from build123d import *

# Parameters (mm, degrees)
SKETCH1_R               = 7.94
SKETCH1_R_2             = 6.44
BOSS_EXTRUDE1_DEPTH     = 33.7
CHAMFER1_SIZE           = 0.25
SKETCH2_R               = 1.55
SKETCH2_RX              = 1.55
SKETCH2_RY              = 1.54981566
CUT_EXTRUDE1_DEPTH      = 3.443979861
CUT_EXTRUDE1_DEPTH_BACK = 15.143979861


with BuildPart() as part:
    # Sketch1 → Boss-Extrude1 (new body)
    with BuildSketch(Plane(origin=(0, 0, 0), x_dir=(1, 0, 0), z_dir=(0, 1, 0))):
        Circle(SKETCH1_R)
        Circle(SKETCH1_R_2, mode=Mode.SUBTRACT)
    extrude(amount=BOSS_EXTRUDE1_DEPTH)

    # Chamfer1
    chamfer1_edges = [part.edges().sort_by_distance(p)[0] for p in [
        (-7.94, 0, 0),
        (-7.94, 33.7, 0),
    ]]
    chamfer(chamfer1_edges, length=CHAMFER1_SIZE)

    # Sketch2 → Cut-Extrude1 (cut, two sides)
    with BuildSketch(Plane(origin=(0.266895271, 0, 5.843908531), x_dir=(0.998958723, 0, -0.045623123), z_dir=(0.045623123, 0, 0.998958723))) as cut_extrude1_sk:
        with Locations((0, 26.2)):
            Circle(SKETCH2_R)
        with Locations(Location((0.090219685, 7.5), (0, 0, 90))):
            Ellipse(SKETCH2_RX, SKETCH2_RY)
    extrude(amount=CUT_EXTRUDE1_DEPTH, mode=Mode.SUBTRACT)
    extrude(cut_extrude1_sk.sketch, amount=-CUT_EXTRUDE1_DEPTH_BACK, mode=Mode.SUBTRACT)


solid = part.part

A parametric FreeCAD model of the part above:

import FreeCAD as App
import Part
import Sketcher
from FreeCAD import Vector
Q = App.Units.Quantity


def edges_at(feature, points):
    """Names of the edges that pass closest to the given points."""
    edges = feature.Shape.Edges
    near = lambda p: min(range(len(edges)), key=lambda i: edges[i].distToShape(Part.Vertex(*p))[0])
    return sorted({f"Edge{near(p) + 1}" for p in points})

doc = App.newDocument("Part")
params = doc.addObject("Spreadsheet::Sheet", "Params")
for row, (alias, value) in enumerate([
    ("sketch1_diameter", "15.88 mm"),
    ("sketch1_diameter2", "12.88 mm"),
    ("pad1_length", "33.7 mm"),
    ("chamfer_size", "0.25 mm"),
    ("sketch2_diameter", "3.1 mm"),
], start=1):
    params.set(f"A{row}", alias)
    params.set(f"B{row}", "=" + value)
    params.setAlias(f"B{row}", alias)

body = doc.addObject("PartDesign::Body", "Body")

sketch1 = body.newObject("Sketcher::SketchObject", "Sketch")
sketch1.AttachmentSupport = (doc.getObject("XZ_Plane"), [""])
sketch1.MapMode = "FlatFace"
sketch1.addGeometry(Part.Circle(Vector(0, 0, 0), Vector(0, 0, 1), 8), False)
sketch1.addGeometry(Part.Circle(Vector(0, 0, 0), Vector(0, 0, 1), 6), False)
sketch1.addConstraint(Sketcher.Constraint("Coincident", 0, 3, -1, 1))
sketch1.addConstraint(Sketcher.Constraint("Coincident", 1, 3, -1, 1))
sketch1.addConstraint(Sketcher.Constraint("Diameter", 0, Q("15.88 mm")))
sketch1.addConstraint(Sketcher.Constraint("Diameter", 1, Q("12.88 mm")))
sketch1.setExpression("Constraints[2]", "Params.sketch1_diameter")
sketch1.setExpression("Constraints[3]", "Params.sketch1_diameter2")
pad1 = body.newObject("PartDesign::Pad", "Pad")
pad1.Profile = sketch1
pad1.setExpression("Length", "Params.pad1_length")
pad1.Reversed = True
doc.recompute()

chamfer = body.newObject("PartDesign::Chamfer", "Chamfer")
chamfer.Base = (pad1, edges_at(pad1, [(-7.94, 0, 0), (-7.94, 33.7, 0)]))
chamfer.setExpression("Size", "Params.chamfer_size")

sketch2 = body.newObject("Sketcher::SketchObject", "Sketch001")
sketch2.Placement = App.Placement(Vector(0.266895, 0, 5.843909), App.Rotation(Vector(0.998958723, 0, -0.045623123), Vector(0, 1, 0), Vector(0.045623123, 0, 0.998958723), "ZXY"))
sketch2.addGeometry(Part.Circle(Vector(0, 26.2, 0), Vector(0, 0, 1), 1.55), False)
sketch2.addGeometry(Part.Ellipse(Vector(0.09022, 9.05, 0), Vector(-1.459596, 7.5, 0), Vector(0.09022, 7.5, 0)), False)
sketch2.addConstraint(Sketcher.Constraint("Block", 1))
sketch2.addConstraint(Sketcher.Constraint("PointOnObject", 0, 3, -2))
sketch2.addConstraint(Sketcher.Constraint("Diameter", 0, Q("3.1 mm")))
sketch2.addConstraint(Sketcher.Constraint("DistanceY", -1, 1, 0, 3, Q("26.2 mm")))
sketch2.setExpression("Constraints[2]", "Params.sketch2_diameter")
pocket1 = body.newObject("PartDesign::Pocket", "Pocket")
pocket1.Profile = sketch2
pocket1.Type = "ThroughAll"
pocket1.Midplane = True

doc.recompute()
